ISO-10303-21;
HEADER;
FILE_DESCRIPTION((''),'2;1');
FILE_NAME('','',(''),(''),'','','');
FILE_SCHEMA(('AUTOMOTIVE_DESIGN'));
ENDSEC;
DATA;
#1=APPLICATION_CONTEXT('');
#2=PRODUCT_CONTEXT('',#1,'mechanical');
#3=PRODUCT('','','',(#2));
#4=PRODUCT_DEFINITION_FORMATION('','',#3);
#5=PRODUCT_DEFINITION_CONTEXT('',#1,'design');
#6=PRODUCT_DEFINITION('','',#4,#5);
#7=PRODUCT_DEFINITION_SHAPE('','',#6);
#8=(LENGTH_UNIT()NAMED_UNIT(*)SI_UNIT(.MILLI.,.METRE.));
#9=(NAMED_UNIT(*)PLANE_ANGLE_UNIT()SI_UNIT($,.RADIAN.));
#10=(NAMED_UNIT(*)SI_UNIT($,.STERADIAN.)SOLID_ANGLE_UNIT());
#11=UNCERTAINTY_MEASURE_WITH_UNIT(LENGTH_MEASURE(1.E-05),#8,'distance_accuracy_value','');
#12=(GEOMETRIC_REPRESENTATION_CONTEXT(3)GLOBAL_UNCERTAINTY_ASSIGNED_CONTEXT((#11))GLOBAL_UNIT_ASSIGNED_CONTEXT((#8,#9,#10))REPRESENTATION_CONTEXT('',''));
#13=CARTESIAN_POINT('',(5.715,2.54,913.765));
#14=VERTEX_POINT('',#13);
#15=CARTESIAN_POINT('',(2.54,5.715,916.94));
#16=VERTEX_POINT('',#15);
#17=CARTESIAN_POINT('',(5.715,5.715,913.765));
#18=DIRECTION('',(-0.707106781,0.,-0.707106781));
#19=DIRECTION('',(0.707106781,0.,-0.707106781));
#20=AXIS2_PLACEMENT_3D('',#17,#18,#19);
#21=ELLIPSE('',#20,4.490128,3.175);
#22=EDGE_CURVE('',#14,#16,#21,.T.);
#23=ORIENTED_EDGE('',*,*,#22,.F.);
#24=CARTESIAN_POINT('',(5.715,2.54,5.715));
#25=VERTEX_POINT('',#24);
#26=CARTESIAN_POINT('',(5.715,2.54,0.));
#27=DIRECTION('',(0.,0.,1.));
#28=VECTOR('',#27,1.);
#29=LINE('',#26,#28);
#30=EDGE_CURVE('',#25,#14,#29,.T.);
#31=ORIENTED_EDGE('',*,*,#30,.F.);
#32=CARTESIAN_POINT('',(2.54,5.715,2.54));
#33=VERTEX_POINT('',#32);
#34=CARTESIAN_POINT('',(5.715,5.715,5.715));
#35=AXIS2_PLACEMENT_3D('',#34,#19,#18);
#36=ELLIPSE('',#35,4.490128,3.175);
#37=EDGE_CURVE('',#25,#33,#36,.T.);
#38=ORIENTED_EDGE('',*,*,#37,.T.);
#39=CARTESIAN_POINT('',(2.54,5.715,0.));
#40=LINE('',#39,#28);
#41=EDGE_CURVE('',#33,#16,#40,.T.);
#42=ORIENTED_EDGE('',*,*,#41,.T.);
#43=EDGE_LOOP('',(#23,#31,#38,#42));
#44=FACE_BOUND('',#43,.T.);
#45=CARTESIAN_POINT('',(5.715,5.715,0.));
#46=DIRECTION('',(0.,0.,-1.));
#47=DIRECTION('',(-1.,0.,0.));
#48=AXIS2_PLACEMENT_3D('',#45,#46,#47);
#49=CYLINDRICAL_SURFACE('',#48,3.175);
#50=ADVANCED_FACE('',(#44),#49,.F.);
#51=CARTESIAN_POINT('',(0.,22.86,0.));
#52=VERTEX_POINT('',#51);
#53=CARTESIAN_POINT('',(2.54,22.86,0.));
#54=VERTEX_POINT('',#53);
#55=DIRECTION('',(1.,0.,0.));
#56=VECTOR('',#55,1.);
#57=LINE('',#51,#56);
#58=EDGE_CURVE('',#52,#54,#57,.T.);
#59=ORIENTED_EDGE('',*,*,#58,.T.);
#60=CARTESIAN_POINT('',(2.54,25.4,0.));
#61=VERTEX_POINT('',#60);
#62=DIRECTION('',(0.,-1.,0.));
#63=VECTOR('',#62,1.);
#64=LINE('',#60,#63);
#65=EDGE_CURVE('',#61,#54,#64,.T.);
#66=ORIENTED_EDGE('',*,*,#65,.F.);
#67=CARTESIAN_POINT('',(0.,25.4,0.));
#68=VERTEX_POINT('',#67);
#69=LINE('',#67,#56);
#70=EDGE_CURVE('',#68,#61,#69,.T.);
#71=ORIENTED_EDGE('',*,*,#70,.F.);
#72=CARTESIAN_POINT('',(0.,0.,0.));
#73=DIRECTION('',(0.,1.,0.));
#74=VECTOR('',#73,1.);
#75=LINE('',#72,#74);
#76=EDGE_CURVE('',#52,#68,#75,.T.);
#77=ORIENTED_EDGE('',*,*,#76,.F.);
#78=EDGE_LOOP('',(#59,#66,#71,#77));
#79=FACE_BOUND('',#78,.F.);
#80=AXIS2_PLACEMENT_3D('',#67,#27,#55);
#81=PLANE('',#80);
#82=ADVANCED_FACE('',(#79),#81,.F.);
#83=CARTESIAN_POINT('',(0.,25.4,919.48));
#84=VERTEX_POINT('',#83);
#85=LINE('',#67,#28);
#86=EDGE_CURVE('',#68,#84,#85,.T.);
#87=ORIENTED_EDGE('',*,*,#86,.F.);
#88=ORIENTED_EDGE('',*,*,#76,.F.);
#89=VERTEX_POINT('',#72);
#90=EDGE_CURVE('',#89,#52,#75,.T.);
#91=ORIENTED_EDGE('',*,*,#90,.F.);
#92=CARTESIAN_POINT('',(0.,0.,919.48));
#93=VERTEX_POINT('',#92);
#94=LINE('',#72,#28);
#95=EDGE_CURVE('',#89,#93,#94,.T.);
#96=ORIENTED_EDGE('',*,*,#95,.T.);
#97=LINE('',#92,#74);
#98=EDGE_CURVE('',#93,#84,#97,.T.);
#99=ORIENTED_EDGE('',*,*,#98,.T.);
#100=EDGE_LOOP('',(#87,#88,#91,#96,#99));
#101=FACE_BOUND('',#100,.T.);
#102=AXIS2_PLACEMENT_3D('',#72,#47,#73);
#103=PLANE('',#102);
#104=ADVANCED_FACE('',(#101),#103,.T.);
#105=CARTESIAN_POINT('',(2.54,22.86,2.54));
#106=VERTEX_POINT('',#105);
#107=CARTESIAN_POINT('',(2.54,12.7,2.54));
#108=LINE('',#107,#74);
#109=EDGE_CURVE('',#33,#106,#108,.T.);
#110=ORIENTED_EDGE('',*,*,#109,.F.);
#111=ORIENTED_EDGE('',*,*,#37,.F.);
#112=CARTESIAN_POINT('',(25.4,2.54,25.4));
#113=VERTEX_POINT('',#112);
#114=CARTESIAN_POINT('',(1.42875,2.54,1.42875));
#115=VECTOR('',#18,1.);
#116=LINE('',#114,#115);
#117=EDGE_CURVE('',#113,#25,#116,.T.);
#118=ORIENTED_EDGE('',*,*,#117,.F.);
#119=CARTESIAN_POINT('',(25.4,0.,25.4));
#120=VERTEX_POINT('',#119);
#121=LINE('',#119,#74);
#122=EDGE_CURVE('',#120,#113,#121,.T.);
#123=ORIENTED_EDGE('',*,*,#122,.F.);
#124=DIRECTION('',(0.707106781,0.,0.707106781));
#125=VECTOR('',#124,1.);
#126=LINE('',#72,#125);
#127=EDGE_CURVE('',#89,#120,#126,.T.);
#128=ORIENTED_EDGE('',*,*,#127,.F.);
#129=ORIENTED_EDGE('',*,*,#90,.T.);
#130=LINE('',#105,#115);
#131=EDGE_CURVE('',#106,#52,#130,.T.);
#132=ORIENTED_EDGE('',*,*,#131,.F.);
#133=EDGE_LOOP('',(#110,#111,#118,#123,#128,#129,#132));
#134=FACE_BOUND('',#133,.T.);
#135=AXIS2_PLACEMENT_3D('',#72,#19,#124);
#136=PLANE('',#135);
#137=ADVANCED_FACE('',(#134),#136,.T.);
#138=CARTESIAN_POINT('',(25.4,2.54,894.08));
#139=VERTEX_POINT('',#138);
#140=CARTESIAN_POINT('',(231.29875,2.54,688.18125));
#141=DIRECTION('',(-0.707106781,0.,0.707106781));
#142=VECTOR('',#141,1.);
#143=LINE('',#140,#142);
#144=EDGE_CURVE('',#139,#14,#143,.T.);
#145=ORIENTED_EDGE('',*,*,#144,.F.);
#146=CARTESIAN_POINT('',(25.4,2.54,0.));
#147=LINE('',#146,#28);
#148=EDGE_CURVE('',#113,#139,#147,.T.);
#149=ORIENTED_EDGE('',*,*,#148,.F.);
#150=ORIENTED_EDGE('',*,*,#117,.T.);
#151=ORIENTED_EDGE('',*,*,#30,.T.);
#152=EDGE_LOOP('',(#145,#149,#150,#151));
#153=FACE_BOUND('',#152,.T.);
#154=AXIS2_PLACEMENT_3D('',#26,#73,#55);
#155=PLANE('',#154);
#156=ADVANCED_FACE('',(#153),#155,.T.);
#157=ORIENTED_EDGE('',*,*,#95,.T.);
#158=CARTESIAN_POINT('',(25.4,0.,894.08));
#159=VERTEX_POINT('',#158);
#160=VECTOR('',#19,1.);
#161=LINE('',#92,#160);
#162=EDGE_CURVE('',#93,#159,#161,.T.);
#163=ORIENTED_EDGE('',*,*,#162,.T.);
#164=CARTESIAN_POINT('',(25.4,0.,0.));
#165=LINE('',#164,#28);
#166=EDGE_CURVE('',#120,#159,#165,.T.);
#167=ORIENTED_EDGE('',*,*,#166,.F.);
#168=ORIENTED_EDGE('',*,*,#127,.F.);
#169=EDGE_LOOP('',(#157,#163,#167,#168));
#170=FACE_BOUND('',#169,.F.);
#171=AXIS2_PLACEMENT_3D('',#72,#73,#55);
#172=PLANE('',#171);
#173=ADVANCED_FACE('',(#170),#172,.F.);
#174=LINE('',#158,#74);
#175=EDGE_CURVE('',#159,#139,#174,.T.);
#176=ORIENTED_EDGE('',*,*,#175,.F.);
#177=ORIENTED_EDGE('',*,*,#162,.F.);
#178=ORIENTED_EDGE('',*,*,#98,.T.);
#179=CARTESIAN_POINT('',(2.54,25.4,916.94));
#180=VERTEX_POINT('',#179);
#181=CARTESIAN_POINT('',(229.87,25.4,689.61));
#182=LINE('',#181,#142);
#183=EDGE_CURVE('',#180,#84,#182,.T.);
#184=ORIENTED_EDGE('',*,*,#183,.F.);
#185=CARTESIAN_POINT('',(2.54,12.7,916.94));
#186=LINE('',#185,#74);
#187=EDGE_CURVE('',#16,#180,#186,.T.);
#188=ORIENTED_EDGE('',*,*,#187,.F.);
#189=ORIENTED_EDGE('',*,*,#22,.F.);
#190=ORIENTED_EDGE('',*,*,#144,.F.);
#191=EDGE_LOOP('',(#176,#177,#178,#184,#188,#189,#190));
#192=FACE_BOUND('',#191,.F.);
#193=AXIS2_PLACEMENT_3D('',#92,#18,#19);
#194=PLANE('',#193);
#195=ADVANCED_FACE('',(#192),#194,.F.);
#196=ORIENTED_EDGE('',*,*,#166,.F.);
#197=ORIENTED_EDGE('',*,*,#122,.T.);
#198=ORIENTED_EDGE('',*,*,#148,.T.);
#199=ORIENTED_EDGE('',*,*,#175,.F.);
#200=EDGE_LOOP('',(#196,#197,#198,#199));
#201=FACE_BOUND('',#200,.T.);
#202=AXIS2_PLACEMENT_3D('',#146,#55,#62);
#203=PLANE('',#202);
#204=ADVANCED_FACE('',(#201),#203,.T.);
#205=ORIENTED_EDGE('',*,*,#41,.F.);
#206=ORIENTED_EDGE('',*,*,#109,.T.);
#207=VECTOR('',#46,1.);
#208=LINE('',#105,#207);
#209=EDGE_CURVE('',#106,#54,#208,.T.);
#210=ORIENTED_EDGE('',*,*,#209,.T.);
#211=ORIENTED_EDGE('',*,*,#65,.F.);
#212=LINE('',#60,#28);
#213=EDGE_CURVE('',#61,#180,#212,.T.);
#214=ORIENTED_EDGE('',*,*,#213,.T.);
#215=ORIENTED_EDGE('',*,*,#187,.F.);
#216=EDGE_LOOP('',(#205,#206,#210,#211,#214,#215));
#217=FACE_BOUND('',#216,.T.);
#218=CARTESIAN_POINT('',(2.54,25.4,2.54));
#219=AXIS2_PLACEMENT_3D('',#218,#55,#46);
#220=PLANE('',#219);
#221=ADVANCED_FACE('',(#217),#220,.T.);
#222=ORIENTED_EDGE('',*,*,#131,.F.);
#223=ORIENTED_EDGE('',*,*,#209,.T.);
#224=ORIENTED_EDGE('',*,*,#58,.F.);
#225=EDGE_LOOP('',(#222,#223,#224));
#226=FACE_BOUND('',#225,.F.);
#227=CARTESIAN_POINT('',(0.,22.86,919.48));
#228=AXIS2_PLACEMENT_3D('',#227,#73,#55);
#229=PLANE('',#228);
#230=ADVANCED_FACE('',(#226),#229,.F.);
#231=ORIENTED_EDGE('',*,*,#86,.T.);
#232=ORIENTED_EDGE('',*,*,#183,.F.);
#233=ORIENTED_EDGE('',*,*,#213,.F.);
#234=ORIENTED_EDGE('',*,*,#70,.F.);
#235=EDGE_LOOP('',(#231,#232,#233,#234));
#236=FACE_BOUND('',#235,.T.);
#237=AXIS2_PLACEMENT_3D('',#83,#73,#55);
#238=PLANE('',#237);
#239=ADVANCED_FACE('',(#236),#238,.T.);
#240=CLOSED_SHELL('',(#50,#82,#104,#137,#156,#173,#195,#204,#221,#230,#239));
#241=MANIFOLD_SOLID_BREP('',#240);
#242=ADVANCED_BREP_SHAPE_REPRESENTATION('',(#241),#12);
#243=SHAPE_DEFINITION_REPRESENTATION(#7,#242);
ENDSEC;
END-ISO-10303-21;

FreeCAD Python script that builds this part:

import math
import FreeCAD as App
import Part
import Sketcher
Q = App.Units.Quantity

doc = App.newDocument("Part")
params = doc.addObject("Spreadsheet::Sheet", "Params")
for row, (alias, value) in enumerate([
    ("sketch1_width", "1 in"),
    ("sketch1_width2", "0.1 in"),
    ("sketch1_radius", "0.125 in"),
    ("pad1_length", "36.2 in"),
    ("sketch2_width", "1 in"),
    ("pocket1_length", "36 in"),
    ("sketch3_width", "0.1 in"),
    ("pad2_length", "0.1 in"),
], start=1):
    params.set(f"A{row}", alias)
    params.set(f"B{row}", "=" + value)
    params.setAlias(f"B{row}", alias)

body = doc.addObject("PartDesign::Body", "Body")

# Sketch on XY plane
sketch1 = body.newObject("Sketcher::SketchObject", "Sketch")
sketch1.AttachmentSupport = (doc.getObject("XY_Plane"), [""])
sketch1.MapMode = "FlatFace"
sketch1.addGeometry(Part.LineSegment(App.Vector(0, 25.4, 0), App.Vector(0, 0, 0)), False)
sketch1.addGeometry(Part.LineSegment(App.Vector(0, 0, 0), App.Vector(25.4, 0, 0)), False)
sketch1.addGeometry(Part.LineSegment(App.Vector(25.4, 0, 0), App.Vector(25.4, 2.54, 0)), False)
sketch1.addGeometry(Part.LineSegment(App.Vector(25.4, 2.54, 0), App.Vector(5.715, 2.54, 0)), False)
sketch1.addGeometry(Part.ArcOfCircle(Part.Circle(App.Vector(5.715, 5.715, 0), App.Vector(0, 0, 1), 3.175), math.radians(180), math.radians(270)), False)
sketch1.addGeometry(Part.LineSegment(App.Vector(2.54, 5.715, 0), App.Vector(2.54, 25.4, 0)), False)
sketch1.addGeometry(Part.LineSegment(App.Vector(2.54, 25.4, 0), App.Vector(0, 25.4, 0)), False)
sketch1.addConstraint(Sketcher.Constraint("Coincident", 0, 2, 1, 1))
sketch1.addConstraint(Sketcher.Constraint("Coincident", 1, 2, 2, 1))
sketch1.addConstraint(Sketcher.Constraint("Coincident", 2, 2, 3, 1))
sketch1.addConstraint(Sketcher.Constraint("Tangent", 3, 2, 4, 2))
sketch1.addConstraint(Sketcher.Constraint("Tangent", 4, 1, 5, 1))
sketch1.addConstraint(Sketcher.Constraint("Coincident", 5, 2, 6, 1))
sketch1.addConstraint(Sketcher.Constraint("Coincident", 6, 2, 0, 1))
sketch1.addConstraint(Sketcher.Constraint("Vertical", 0))
sketch1.addConstraint(Sketcher.Constraint("Horizontal", 1))
sketch1.addConstraint(Sketcher.Constraint("Vertical", 2))
sketch1.addConstraint(Sketcher.Constraint("Horizontal", 3))
sketch1.addConstraint(Sketcher.Constraint("Vertical", 5))
sketch1.addConstraint(Sketcher.Constraint("Horizontal", 6))
sketch1.addConstraint(Sketcher.Constraint("Coincident", 0, 2, -1, 1))
sketch1.addConstraint(Sketcher.Constraint("Equal", 1, 0))
sketch1.addConstraint(Sketcher.Constraint("Equal", 6, 2))
sketch1.addConstraint(Sketcher.Constraint("DistanceX", 1, 1, 1, 2, Q("1 in")))
sketch1.addConstraint(Sketcher.Constraint("DistanceX", 6, 2, 6, 1, Q("0.1 in")))
sketch1.addConstraint(Sketcher.Constraint("Radius", 4, Q("0.125 in")))
sketch1.setExpression("Constraints[16]", "Params.sketch1_width")
sketch1.setExpression("Constraints[17]", "Params.sketch1_width2")
sketch1.setExpression("Constraints[18]", "Params.sketch1_radius")
pad1 = body.newObject("PartDesign::Pad", "Pad")
pad1.Profile = sketch1
pad1.setExpression("Length", "Params.pad1_length")

# Sketch on XZ plane
sketch2 = body.newObject("Sketcher::SketchObject", "Sketch001")
sketch2.AttachmentSupport = (doc.getObject("XZ_Plane"), [""])
sketch2.MapMode = "FlatFace"
sketch2.addGeometry(Part.LineSegment(App.Vector(0, 919.48, 0), App.Vector(25.4, 894.08, 0)), False)
sketch2.addGeometry(Part.LineSegment(App.Vector(25.4, 894.08, 0), App.Vector(25.4, 919.48, 0)), False)
sketch2.addGeometry(Part.LineSegment(App.Vector(25.4, 919.48, 0), App.Vector(0, 919.48, 0)), False)
sketch2.addGeometry(Part.LineSegment(App.Vector(0, 0, 0), App.Vector(25.4, 0, 0)), False)
sketch2.addGeometry(Part.LineSegment(App.Vector(25.4, 0, 0), App.Vector(25.4, 25.4, 0)), False)
sketch2.addGeometry(Part.LineSegment(App.Vector(25.4, 25.4, 0), App.Vector(0, 0, 0)), False)
sketch2.addConstraint(Sketcher.Constraint("Coincident", 0, 2, 1, 1))
sketch2.addConstraint(Sketcher.Constraint("Coincident", 1, 2, 2, 1))
sketch2.addConstraint(Sketcher.Constraint("Coincident", 2, 2, 0, 1))
sketch2.addConstraint(Sketcher.Constraint("Coincident", 3, 2, 4, 1))
sketch2.addConstraint(Sketcher.Constraint("Coincident", 4, 2, 5, 1))
sketch2.addConstraint(Sketcher.Constraint("Coincident", 5, 2, 3, 1))
sketch2.addConstraint(Sketcher.Constraint("Vertical", 1))
sketch2.addConstraint(Sketcher.Constraint("Horizontal", 2))
sketch2.addConstraint(Sketcher.Constraint("Horizontal", 3))
sketch2.addConstraint(Sketcher.Constraint("Vertical", 4))
sketch2.addConstraint(Sketcher.Constraint("Coincident", 5, 2, -1, 1))
sketch2.addConstraint(Sketcher.Constraint("PointOnObject", 2, 2, -2))
sketch2.addConstraint(Sketcher.Constraint("Perpendicular", 0, 5))
sketch2.addConstraint(Sketcher.Constraint("Vertical", 1, 2, 3, 2))
sketch2.addConstraint(Sketcher.Constraint("Equal", 3, 1))
sketch2.addConstraint(Sketcher.Constraint("DistanceX", 2, 2, 2, 1, Q("1 in")))
sketch2.addConstraint(Sketcher.Constraint("DistanceY", -1, 1, 0, 2, Q("35.2 in")))
sketch2.setExpression("Constraints[15]", "Params.sketch2_width")
pocket1 = body.newObject("PartDesign::Pocket", "Pocket")
pocket1.Profile = sketch2
pocket1.setExpression("Length", "Params.pocket1_length")

# Sketch on XZ plane
sketch3 = body.newObject("Sketcher::SketchObject", "Sketch002")
sketch3.AttachmentSupport = (doc.getObject("XZ_Plane"), [""])
sketch3.MapMode = "FlatFace"
sketch3.AttachmentOffset = App.Placement(App.Vector(0, 0, -1 * 25.4), App.Rotation())
sketch3.addGeometry(Part.LineSegment(App.Vector(0, 0, 0), App.Vector(2.54, 2.54, 0)), False)
sketch3.addGeometry(Part.LineSegment(App.Vector(2.54, 2.54, 0), App.Vector(2.54, 0, 0)), False)
sketch3.addGeometry(Part.LineSegment(App.Vector(2.54, 0, 0), App.Vector(0, 0, 0)), False)
sketch3.addConstraint(Sketcher.Constraint("Coincident", 0, 2, 1, 1))
sketch3.addConstraint(Sketcher.Constraint("Coincident", 1, 2, 2, 1))
sketch3.addConstraint(Sketcher.Constraint("Coincident", 2, 2, 0, 1))
sketch3.addConstraint(Sketcher.Constraint("Vertical", 1))
sketch3.addConstraint(Sketcher.Constraint("Horizontal", 2))
sketch3.addConstraint(Sketcher.Constraint("Coincident", 2, 2, -1, 1))
sketch3.addConstraint(Sketcher.Constraint("Equal", 2, 1))
sketch3.addConstraint(Sketcher.Constraint("DistanceX", 2, 2, 2, 1, Q("0.1 in")))
sketch3.setExpression("Constraints[7]", "Params.sketch3_width")
pad2 = body.newObject("PartDesign::Pad", "Pad001")
pad2.Profile = sketch3
pad2.setExpression("Length", "Params.pad2_length")

doc.recompute()
